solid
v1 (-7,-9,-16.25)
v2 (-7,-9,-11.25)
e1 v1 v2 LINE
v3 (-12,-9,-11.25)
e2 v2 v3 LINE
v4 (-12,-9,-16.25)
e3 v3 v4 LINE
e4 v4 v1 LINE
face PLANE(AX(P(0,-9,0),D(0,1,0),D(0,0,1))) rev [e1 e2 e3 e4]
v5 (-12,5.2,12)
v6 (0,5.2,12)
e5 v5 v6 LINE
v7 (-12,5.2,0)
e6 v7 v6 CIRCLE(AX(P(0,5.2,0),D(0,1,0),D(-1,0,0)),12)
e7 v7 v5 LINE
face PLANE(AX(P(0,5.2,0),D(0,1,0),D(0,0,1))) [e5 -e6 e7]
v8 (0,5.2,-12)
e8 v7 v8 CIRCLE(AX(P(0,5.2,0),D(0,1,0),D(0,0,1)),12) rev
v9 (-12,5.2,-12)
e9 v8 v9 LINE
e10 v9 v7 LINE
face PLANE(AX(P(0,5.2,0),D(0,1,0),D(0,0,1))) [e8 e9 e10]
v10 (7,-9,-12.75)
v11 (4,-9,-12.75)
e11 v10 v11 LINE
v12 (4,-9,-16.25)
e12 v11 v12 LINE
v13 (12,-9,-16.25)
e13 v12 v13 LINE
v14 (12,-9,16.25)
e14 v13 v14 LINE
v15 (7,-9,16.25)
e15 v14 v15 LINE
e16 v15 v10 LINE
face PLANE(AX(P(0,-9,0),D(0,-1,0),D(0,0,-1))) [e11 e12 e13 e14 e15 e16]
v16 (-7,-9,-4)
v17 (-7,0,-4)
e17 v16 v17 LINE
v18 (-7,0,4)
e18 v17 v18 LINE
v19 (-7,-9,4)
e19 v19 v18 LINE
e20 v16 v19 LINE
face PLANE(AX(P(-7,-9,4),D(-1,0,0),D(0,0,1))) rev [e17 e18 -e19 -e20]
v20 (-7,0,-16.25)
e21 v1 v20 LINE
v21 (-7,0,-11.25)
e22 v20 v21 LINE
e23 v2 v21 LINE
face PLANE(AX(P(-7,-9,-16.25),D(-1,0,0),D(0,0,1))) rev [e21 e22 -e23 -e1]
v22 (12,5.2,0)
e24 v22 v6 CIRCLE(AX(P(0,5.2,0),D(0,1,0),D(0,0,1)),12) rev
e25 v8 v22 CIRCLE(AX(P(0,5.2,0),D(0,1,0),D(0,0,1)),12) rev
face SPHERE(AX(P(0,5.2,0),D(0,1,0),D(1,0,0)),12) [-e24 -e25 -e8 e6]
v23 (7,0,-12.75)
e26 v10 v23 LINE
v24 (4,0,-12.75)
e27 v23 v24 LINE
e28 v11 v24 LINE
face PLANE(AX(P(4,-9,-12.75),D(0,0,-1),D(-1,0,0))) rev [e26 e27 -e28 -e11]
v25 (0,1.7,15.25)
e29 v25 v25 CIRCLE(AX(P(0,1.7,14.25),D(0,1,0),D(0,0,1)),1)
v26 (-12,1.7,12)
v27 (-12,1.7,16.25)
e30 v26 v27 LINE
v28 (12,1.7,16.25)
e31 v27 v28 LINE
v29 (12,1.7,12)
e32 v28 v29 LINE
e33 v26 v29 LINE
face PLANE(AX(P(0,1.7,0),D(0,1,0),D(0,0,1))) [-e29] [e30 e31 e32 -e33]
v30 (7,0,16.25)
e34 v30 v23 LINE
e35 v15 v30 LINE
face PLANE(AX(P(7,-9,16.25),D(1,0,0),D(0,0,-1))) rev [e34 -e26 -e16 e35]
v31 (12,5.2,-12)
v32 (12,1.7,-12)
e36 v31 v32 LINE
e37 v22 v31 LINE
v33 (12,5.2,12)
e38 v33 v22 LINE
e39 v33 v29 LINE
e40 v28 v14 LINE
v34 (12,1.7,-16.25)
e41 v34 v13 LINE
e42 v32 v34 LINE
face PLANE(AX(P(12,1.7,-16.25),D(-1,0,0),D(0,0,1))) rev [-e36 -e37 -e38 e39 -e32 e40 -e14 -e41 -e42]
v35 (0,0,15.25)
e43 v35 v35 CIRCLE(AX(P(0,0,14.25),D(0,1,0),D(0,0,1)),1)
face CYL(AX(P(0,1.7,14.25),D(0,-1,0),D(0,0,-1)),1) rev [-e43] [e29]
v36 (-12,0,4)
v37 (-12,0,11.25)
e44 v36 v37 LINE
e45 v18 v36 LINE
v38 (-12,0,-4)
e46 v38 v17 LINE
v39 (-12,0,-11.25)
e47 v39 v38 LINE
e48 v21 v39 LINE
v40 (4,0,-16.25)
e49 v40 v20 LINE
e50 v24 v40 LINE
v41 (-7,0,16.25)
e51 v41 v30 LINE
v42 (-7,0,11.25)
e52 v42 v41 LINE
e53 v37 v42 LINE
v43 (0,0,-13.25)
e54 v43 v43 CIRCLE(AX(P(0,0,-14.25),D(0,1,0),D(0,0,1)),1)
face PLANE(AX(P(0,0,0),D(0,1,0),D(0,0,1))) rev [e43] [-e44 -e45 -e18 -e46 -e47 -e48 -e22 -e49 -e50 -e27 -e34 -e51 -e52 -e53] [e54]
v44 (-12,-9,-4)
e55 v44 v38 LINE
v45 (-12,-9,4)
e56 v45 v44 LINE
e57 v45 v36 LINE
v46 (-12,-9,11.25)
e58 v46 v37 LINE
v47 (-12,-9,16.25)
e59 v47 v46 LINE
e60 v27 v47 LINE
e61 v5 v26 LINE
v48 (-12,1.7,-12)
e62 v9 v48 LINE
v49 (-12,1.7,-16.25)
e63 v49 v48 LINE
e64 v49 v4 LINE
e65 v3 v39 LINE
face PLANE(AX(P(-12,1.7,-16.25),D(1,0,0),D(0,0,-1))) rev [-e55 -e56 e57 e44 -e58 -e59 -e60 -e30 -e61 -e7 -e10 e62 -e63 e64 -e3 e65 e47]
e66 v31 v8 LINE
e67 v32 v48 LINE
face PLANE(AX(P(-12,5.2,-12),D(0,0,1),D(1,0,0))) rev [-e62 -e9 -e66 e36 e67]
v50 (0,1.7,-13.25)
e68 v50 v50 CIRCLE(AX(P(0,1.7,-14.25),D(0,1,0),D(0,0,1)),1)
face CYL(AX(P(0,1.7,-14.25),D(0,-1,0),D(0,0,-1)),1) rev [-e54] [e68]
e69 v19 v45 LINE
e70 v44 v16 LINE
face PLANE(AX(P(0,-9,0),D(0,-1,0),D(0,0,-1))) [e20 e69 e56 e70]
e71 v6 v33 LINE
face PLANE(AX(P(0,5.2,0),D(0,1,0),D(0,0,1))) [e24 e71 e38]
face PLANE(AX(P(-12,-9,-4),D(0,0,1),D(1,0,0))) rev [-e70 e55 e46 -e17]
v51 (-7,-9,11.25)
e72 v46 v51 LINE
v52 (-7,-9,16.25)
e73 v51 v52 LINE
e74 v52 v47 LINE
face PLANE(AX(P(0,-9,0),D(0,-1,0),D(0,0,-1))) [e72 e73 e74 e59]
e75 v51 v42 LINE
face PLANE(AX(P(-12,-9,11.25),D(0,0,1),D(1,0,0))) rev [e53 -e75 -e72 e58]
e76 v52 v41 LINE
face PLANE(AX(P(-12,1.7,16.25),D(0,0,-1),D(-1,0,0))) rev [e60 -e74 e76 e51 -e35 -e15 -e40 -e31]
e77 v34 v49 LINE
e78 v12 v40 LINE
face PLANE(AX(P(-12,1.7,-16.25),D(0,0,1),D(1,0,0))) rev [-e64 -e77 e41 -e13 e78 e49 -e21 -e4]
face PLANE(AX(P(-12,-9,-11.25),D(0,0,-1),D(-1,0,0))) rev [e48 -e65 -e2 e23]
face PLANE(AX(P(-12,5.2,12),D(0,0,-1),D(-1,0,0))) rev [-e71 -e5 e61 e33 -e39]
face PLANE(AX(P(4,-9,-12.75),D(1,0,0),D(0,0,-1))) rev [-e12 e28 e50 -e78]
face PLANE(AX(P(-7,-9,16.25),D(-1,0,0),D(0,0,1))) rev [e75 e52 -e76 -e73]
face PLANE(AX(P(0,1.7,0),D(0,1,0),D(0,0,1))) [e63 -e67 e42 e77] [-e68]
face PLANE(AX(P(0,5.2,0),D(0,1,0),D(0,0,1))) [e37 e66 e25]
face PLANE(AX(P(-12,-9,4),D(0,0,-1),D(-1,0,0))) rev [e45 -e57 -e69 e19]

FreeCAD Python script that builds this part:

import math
import FreeCAD as App
import Part
import Sketcher

V = App.Vector
Q = App.Units.Quantity

doc = App.newDocument("Part")
body = doc.addObject("PartDesign::Body", "Body")

sketch1 = body.newObject("Sketcher::SketchObject", "Sketch")
sketch1.AttachmentSupport = (doc.getObject("XZ_Plane"), [""])
sketch1.MapMode = "FlatFace"
sketch1.addGeometry([
    Part.LineSegment(V(-12, -16.25, 0), V(-12, 16.25, 0)),
    Part.LineSegment(V(-12, 16.25, 0), V(12, 16.25, 0)),
    Part.LineSegment(V(12, 16.25, 0), V(12, -16.25, 0)),
    Part.LineSegment(V(12, -16.25, 0), V(-12, -16.25, 0)),
    Part.Circle(V(0, 14.25, 0), V(0, 0, 1), 1),
    Part.Circle(V(0, -14.25, 0), V(0, 0, 1), 1),
], False)
sketch1.addConstraint([
    Sketcher.Constraint("Coincident", 0, 2, 1, 1),
    Sketcher.Constraint("Coincident", 1, 2, 2, 1),
    Sketcher.Constraint("Coincident", 2, 2, 3, 1),
    Sketcher.Constraint("Coincident", 3, 2, 0, 1),
    Sketcher.Constraint("Vertical", 0),
    Sketcher.Constraint("Horizontal", 1),
    Sketcher.Constraint("Vertical", 2),
    Sketcher.Constraint("Horizontal", 3),
    Sketcher.Constraint("Equal", 4, 5),
    Sketcher.Constraint("Symmetric", 4, 3, 5, 3, -1, 1),
    Sketcher.Constraint("Symmetric", 0, 2, 2, 2, -1, 1),
    Sketcher.Constraint("PointOnObject", 4, 3, -2),
    Sketcher.Constraint("Diameter", 4, Q("2 mm")),
    Sketcher.Constraint("DistanceX", 1, 1, 1, 2, Q("24 mm")),
    Sketcher.Constraint("DistanceY", 0, 1, 0, 2, Q("32.5 mm")),
    Sketcher.Constraint("DistanceY", 4, 3, 0, 2, Q("2 mm")),
])
pad1 = body.newObject("PartDesign::Pad", "Pad")
pad1.Profile = sketch1
pad1.Length = 1.7
pad1.Reversed = True

sketch2 = body.newObject("Sketcher::SketchObject", "Sketch001")
sketch2.AttachmentSupport = (doc.getObject("XZ_Plane"), [""])
sketch2.MapMode = "FlatFace"
sketch2.AttachmentOffset = App.Placement(V(0, 0, -1.7), App.Rotation())
sketch2.addGeometry([
    Part.LineSegment(V(-12, -12, 0), V(-12, 12, 0)),
    Part.LineSegment(V(-12, 12, 0), V(12, 12, 0)),
    Part.LineSegment(V(12, 12, 0), V(12, -12, 0)),
    Part.LineSegment(V(12, -12, 0), V(-12, -12, 0)),
], False)
sketch2.addConstraint([
    Sketcher.Constraint("Coincident", 0, 2, 1, 1),
    Sketcher.Constraint("Coincident", 1, 2, 2, 1),
    Sketcher.Constraint("Coincident", 2, 2, 3, 1),
    Sketcher.Constraint("Coincident", 3, 2, 0, 1),
    Sketcher.Constraint("Vertical", 0),
    Sketcher.Constraint("Horizontal", 1),
    Sketcher.Constraint("Vertical", 2),
    Sketcher.Constraint("Horizontal", 3),
    Sketcher.Constraint("Symmetric", 0, 2, 2, 2, -1, 1),
    Sketcher.Constraint("Equal", 3, 0),
    Sketcher.Constraint("DistanceX", 1, 1, 1, 2, Q("24 mm")),
])
pad2 = body.newObject("PartDesign::Pad", "Pad001")
pad2.Profile = sketch2
pad2.Length = 3.5
pad2.Reversed = True

sketch3 = body.newObject("Sketcher::SketchObject", "Sketch002")
sketch3.AttachmentSupport = (doc.getObject("XY_Plane"), [""])
sketch3.MapMode = "FlatFace"
sketch3.addGeometry([
    Part.LineSegment(V(0, 17.2, 0), V(0, 5.2, 0)),
    Part.LineSegment(V(0, 5.2, 0), V(12, 5.2, 0)),
    Part.ArcOfCircle(Part.Circle(V(0, 5.2, 0), V(0, 0, 1), 12), math.radians(0), math.radians(90)),
], False)
sketch3.addConstraint([
    Sketcher.Constraint("Coincident", 0, 2, 1, 1),
    Sketcher.Constraint("Coincident", 1, 2, 2, 1),
    Sketcher.Constraint("Coincident", 2, 2, 0, 1),
    Sketcher.Constraint("Vertical", 0),
    Sketcher.Constraint("Horizontal", 1),
    Sketcher.Constraint("Coincident", 0, 2, 2, 3),
    Sketcher.Constraint("PointOnObject", 2, 3, -2),
    Sketcher.Constraint("Radius", 2, Q("12 mm")),
    Sketcher.Constraint("DistanceY", -1, 1, 2, 3, Q("5.2 mm")),
])
revolution = body.newObject("PartDesign::Revolution", "Revolution")
revolution.Profile = sketch3
revolution.ReferenceAxis = (sketch3, ["V_Axis"])
revolution.Angle = 360

sketch4 = body.newObject("Sketcher::SketchObject", "Sketch003")
sketch4.AttachmentSupport = (doc.getObject("XZ_Plane"), [""])
sketch4.MapMode = "FlatFace"
sketch4.addGeometry([
    Part.LineSegment(V(12, 16.25, 0), V(7, 16.25, 0)),
    Part.LineSegment(V(7, 16.25, 0), V(7, -12.75, 0)),
    Part.LineSegment(V(7, -12.75, 0), V(4, -12.75, 0)),
    Part.LineSegment(V(4, -12.75, 0), V(4, -16.25, 0)),
    Part.LineSegment(V(4, -16.25, 0), V(12, -16.25, 0)),
    Part.LineSegment(V(12, -16.25, 0), V(12, 16.25, 0)),
    Part.LineSegment(V(-12, 16.25, 0), V(-12, 11.25, 0)),
    Part.LineSegment(V(-12, 11.25, 0), V(-7, 11.25, 0)),
    Part.LineSegment(V(-7, 11.25, 0), V(-7, 16.25, 0)),
    Part.LineSegment(V(-7, 16.25, 0), V(-12, 16.25, 0)),
    Part.LineSegment(V(-12, -11.25, 0), V(-12, -16.25, 0)),
    Part.LineSegment(V(-12, -16.25, 0), V(-7, -16.25, 0)),
    Part.LineSegment(V(-7, -16.25, 0), V(-7, -11.25, 0)),
    Part.LineSegment(V(-7, -11.25, 0), V(-12, -11.25, 0)),
    Part.LineSegment(V(-12, 4, 0), V(-12, -4, 0)),
    Part.LineSegment(V(-12, -4, 0), V(-7, -4, 0)),
    Part.LineSegment(V(-7, -4, 0), V(-7, 4, 0)),
    Part.LineSegment(V(-7, 4, 0), V(-12, 4, 0)),
], False)
sketch4.addConstraint([
    Sketcher.Constraint("Coincident", 0, 2, 1, 1),
    Sketcher.Constraint("Coincident", 1, 2, 2, 1),
    Sketcher.Constraint("Coincident", 2, 2, 3, 1),
    Sketcher.Constraint("Coincident", 3, 2, 4, 1),
    Sketcher.Constraint("Coincident", 4, 2, 5, 1),
    Sketcher.Constraint("Coincident", 5, 2, 0, 1),
    Sketcher.Constraint("Coincident", 6, 2, 7, 1),
    Sketcher.Constraint("Coincident", 7, 2, 8, 1),
    Sketcher.Constraint("Coincident", 8, 2, 9, 1),
    Sketcher.Constraint("Coincident", 9, 2, 6, 1),
    Sketcher.Constraint("Coincident", 10, 2, 11, 1),
    Sketcher.Constraint("Coincident", 11, 2, 12, 1),
    Sketcher.Constraint("Coincident", 12, 2, 13, 1),
    Sketcher.Constraint("Coincident", 13, 2, 10, 1),
    Sketcher.Constraint("Coincident", 14, 2, 15, 1),
    Sketcher.Constraint("Coincident", 15, 2, 16, 1),
    Sketcher.Constraint("Coincident", 16, 2, 17, 1),
    Sketcher.Constraint("Coincident", 17, 2, 14, 1),
    Sketcher.Constraint("Horizontal", 0),
    Sketcher.Constraint("Vertical", 1),
    Sketcher.Constraint("Horizontal", 2),
    Sketcher.Constraint("Vertical", 3),
    Sketcher.Constraint("Horizontal", 4),
    Sketcher.Constraint("Vertical", 5),
    Sketcher.Constraint("Vertical", 6),
    Sketcher.Constraint("Horizontal", 7),
    Sketcher.Constraint("Vertical", 8),
    Sketcher.Constraint("Horizontal", 9),
    Sketcher.Constraint("Vertical", 10),
    Sketcher.Constraint("Horizontal", 11),
    Sketcher.Constraint("Vertical", 12),
    Sketcher.Constraint("Horizontal", 13),
    Sketcher.Constraint("Vertical", 14),
    Sketcher.Constraint("Horizontal", 15),
    Sketcher.Constraint("Vertical", 16),
    Sketcher.Constraint("Horizontal", 17),
    Sketcher.Constraint("Symmetric", 4, 2, 9, 2, -1, 1),
    Sketcher.Constraint("Symmetric", 5, 2, 10, 2, -1, 1),
    Sketcher.Constraint("Symmetric", 0, 2, 8, 2, -2),
    Sketcher.Constraint("Symmetric", 7, 2, 12, 2, -1),
    Sketcher.Constraint("Vertical", 13, 2, 14, 2),
    Sketcher.Constraint("Vertical", 12, 2, 15, 2),
    Sketcher.Constraint("Equal", 17, 6),
    Sketcher.Constraint("Equal", 4, 14),
    Sketcher.Constraint("DistanceX", 0, 2, 0, 1, Q("5 mm")),
    Sketcher.Constraint("DistanceX", 2, 2, 2, 1, Q("3 mm")),
    Sketcher.Constraint("DistanceY", 1, 2, 1, 1, Q("29 mm")),
    Sketcher.Constraint("DistanceY", 3, 2, 3, 1, Q("3.5 mm")),
    Sketcher.Constraint("DistanceX", -1, 1, 0, 2, Q("7 mm")),
    Sketcher.Constraint("DistanceY", 14, 2, -1, 1, Q("4 mm")),
])
pad3 = body.newObject("PartDesign::Pad", "Pad002")
pad3.Profile = sketch4
pad3.Length = 9

doc.recompute()
